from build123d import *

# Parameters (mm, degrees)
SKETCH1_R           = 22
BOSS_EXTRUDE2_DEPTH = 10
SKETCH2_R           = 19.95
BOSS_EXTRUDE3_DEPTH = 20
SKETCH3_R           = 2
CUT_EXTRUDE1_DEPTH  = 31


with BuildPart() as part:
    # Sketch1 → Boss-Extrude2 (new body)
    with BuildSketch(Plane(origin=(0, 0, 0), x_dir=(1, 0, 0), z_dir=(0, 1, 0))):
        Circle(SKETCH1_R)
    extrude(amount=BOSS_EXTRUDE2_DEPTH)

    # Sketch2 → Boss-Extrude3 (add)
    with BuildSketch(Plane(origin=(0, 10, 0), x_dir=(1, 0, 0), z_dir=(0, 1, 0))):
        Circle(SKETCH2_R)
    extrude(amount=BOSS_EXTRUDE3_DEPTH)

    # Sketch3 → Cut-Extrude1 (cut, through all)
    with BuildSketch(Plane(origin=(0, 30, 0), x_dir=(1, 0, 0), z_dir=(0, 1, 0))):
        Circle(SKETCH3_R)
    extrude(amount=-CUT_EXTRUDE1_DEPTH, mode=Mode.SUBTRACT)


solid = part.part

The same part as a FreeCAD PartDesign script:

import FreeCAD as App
import Part
import Sketcher
Q = App.Units.Quantity

doc = App.newDocument("Part")
body = doc.addObject("PartDesign::Body", "Body")

sketch1 = body.newObject("Sketcher::SketchObject", "Sketch")
sketch1.AttachmentSupport = (doc.getObject("XZ_Plane"), [""])
sketch1.MapMode = "FlatFace"
sketch1.addGeometry(Part.Circle(App.Vector(0, 0, 0), App.Vector(0, 0, 1), 22), False)
sketch1.addConstraint(Sketcher.Constraint("Coincident", 0, 3, -1, 1))
sketch1.addConstraint(Sketcher.Constraint("Diameter", 0, Q("44 mm")))
pad1 = body.newObject("PartDesign::Pad", "Pad")
pad1.Profile = sketch1
pad1.Length = 10
pad1.Reversed = True

sketch2 = body.newObject("Sketcher::SketchObject", "Sketch001")
sketch2.AttachmentSupport = (doc.getObject("XZ_Plane"), [""])
sketch2.MapMode = "FlatFace"
sketch2.AttachmentOffset = App.Placement(App.Vector(0, 0, -10), App.Rotation())
sketch2.addGeometry(Part.Circle(App.Vector(0, 0, 0), App.Vector(0, 0, 1), 20), False)
sketch2.addConstraint(Sketcher.Constraint("Coincident", 0, 3, -1, 1))
sketch2.addConstraint(Sketcher.Constraint("Diameter", 0, Q("39.9 mm")))
pad2 = body.newObject("PartDesign::Pad", "Pad001")
pad2.Profile = sketch2
pad2.Length = 20
pad2.Reversed = True

sketch3 = body.newObject("Sketcher::SketchObject", "Sketch002")
sketch3.AttachmentSupport = (doc.getObject("XZ_Plane"), [""])
sketch3.MapMode = "FlatFace"
sketch3.AttachmentOffset = App.Placement(App.Vector(0, 0, -30), App.Rotation())
sketch3.addGeometry(Part.Circle(App.Vector(0, 0, 0), App.Vector(0, 0, 1), 2), False)
sketch3.addConstraint(Sketcher.Constraint("Coincident", 0, 3, -1, 1))
sketch3.addConstraint(Sketcher.Constraint("Diameter", 0, Q("4 mm")))
pocket1 = body.newObject("PartDesign::Pocket", "Pocket")
pocket1.Profile = sketch3
pocket1.Type = "ThroughAll"
pocket1.Reversed = True

doc.recompute()
